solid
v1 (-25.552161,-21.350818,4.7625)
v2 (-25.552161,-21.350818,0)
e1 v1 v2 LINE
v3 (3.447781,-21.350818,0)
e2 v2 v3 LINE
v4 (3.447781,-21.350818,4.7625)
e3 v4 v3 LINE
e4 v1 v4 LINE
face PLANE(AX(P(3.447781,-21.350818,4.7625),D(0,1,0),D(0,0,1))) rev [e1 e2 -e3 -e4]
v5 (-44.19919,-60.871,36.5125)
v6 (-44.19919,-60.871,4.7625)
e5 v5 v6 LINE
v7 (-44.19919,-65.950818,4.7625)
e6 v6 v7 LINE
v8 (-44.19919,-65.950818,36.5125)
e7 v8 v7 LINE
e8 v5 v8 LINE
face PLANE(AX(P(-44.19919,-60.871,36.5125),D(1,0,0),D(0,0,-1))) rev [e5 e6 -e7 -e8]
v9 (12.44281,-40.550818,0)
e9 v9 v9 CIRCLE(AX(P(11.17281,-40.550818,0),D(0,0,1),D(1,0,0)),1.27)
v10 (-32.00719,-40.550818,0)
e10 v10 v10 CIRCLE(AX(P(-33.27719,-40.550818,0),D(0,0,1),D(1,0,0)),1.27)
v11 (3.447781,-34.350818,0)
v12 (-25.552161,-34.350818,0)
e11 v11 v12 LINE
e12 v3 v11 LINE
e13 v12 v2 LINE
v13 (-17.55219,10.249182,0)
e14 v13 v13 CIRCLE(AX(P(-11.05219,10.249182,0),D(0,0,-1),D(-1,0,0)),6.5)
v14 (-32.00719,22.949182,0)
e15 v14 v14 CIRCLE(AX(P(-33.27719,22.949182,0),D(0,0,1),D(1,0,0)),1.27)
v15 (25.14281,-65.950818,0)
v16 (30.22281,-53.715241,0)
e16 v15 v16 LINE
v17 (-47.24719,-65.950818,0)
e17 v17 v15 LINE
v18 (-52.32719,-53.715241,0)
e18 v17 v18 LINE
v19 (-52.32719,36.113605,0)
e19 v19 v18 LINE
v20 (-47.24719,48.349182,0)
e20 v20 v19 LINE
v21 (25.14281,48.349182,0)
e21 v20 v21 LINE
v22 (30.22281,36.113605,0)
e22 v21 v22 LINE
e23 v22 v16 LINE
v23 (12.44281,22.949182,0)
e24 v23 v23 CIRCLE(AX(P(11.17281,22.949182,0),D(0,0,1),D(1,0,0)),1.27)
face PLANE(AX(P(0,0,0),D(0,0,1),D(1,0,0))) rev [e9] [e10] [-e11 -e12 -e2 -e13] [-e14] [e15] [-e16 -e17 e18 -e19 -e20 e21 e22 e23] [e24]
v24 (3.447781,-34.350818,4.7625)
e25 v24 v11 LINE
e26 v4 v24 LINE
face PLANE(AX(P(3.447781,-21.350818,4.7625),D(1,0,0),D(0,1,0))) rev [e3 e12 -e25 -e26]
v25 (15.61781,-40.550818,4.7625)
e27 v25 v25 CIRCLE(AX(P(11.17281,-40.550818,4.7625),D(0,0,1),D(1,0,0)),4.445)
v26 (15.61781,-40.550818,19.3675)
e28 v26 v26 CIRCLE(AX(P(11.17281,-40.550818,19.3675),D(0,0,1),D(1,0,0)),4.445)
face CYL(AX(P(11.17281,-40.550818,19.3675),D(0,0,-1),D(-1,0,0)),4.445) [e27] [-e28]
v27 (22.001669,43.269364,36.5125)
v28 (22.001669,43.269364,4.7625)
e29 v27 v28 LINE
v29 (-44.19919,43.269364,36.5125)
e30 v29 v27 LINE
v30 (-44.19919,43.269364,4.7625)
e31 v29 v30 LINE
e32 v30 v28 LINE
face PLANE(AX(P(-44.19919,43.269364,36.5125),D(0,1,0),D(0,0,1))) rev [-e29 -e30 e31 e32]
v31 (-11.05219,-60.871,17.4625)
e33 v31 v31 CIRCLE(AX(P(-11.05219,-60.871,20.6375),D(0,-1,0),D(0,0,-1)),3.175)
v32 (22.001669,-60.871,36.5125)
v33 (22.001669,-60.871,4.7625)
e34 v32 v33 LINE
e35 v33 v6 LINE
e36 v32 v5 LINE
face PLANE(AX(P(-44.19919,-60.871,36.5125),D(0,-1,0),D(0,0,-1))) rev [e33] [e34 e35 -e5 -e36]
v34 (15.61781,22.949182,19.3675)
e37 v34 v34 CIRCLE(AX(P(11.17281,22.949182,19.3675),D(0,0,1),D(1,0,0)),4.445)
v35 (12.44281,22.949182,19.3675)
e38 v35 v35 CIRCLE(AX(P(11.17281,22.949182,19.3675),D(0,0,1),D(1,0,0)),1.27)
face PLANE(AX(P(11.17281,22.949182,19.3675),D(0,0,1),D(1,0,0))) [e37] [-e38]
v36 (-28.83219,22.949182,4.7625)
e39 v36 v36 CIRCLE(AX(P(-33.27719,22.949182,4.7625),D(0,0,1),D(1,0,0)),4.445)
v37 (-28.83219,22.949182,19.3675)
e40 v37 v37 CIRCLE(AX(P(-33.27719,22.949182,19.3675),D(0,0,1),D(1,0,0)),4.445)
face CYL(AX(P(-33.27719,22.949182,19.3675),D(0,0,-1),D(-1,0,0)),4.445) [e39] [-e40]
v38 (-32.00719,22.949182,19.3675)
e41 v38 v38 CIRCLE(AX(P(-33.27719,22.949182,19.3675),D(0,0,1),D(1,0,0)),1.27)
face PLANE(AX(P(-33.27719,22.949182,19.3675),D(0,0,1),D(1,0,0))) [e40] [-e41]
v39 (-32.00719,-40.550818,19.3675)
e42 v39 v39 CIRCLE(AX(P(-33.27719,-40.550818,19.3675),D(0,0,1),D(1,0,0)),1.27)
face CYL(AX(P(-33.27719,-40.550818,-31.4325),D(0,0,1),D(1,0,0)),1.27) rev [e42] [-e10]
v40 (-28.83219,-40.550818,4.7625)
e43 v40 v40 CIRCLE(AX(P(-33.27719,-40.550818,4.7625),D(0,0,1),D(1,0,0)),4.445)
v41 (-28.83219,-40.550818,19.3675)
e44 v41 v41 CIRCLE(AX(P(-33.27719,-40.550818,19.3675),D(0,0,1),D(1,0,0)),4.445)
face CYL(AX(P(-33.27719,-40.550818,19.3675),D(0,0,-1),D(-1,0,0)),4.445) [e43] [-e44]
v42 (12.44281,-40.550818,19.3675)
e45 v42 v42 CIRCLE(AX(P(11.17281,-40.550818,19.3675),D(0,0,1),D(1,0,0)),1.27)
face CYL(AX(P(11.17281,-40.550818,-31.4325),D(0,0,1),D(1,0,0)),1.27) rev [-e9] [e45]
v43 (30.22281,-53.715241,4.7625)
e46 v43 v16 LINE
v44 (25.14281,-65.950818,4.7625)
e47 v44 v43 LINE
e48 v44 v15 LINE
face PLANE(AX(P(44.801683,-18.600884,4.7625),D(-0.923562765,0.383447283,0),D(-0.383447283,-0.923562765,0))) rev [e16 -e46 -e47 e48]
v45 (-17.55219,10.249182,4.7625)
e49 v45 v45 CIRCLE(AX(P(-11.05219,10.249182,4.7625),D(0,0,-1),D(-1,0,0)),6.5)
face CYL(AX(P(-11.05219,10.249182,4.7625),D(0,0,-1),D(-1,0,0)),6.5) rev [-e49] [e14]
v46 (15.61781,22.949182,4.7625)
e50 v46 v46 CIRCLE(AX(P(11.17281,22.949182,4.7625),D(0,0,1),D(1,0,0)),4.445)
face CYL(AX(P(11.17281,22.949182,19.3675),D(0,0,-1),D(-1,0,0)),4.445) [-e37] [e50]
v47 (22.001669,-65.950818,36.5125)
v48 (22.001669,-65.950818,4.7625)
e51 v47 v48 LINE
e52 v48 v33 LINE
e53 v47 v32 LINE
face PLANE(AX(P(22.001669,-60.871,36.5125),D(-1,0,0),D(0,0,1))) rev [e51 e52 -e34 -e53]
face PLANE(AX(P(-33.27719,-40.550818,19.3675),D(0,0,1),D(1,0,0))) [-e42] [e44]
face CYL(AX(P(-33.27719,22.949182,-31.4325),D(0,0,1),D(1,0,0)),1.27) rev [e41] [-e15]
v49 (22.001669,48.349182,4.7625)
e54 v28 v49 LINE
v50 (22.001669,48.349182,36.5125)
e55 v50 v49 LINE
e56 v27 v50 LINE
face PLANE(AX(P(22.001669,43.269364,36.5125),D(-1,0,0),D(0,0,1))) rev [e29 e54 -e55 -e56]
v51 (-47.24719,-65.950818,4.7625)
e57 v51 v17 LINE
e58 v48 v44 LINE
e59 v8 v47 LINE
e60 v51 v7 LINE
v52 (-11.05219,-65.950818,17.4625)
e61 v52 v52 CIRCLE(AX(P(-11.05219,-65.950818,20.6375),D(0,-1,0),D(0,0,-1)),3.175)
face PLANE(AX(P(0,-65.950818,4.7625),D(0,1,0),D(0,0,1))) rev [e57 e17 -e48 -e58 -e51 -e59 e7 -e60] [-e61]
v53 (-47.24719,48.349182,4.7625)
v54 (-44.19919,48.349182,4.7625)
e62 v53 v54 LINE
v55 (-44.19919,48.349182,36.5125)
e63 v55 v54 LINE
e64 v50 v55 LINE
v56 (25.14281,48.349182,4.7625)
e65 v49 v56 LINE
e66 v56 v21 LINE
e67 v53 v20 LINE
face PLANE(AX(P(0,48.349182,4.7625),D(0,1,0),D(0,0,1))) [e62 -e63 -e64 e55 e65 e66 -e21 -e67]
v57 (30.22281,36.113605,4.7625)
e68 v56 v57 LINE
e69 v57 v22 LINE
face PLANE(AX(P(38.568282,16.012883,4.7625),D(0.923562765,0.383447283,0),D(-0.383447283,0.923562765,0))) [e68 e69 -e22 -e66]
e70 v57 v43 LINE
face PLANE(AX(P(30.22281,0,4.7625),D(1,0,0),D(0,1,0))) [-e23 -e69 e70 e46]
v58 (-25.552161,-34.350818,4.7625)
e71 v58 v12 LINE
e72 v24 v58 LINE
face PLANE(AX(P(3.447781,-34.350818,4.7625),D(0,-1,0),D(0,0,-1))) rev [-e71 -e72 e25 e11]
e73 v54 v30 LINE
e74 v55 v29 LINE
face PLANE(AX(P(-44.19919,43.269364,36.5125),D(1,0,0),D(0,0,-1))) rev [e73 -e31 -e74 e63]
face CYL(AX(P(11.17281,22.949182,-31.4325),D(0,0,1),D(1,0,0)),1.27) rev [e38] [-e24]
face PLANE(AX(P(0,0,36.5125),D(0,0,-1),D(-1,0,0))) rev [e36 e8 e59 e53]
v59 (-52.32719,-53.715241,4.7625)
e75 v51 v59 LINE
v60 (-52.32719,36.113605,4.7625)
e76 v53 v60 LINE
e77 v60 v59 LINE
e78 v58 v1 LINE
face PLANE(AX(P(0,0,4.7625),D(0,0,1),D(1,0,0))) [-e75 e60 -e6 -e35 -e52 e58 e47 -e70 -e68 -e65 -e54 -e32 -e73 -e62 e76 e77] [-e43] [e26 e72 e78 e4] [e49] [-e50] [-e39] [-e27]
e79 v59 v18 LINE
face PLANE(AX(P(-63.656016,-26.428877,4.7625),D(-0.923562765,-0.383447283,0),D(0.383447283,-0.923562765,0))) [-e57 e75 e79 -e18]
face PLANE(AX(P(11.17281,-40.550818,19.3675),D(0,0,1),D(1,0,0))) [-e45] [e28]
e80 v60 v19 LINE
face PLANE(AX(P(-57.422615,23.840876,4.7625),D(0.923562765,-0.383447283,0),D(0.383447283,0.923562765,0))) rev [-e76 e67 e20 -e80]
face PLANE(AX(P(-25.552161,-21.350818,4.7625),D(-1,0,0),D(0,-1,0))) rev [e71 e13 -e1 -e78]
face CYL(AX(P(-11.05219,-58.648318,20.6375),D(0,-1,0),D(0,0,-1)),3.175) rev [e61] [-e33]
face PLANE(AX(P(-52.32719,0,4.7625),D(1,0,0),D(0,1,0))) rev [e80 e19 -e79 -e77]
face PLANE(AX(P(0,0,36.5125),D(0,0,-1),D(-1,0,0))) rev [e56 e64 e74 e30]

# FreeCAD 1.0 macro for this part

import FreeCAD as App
import Part
import Sketcher

V = App.Vector
Q = App.Units.Quantity


def add_polygon(sketch, points):
    """Adds a closed chain of lines whose ends are joined by coincident constraints."""
    first, n = sketch.GeometryCount, len(points)
    for a, b in zip(points, points[1:] + points[:1]):
        sketch.addGeometry(Part.LineSegment(App.Vector(*a, 0), App.Vector(*b, 0)), False)
    for i in range(n):
        sketch.addConstraint(Sketcher.Constraint("Coincident", first + i, 2, first + (i + 1) % n, 1))

doc = App.newDocument("Part")
body = doc.addObject("PartDesign::Body", "Body")

# Sketch on XY plane
sketch1 = doc.addObject("Sketcher::SketchObject", "Sketch")
body.addObject(sketch1)
sketch1.AttachmentSupport = (doc.XY_Plane, [""])
sketch1.MapMode = "FlatFace"
add_polygon(sketch1, [(30, 36), (25, 48), (-47, 48), (-52, 36), (-52, -54), (-47, -66), (25, -66), (30, -54)])  # lines 0-7
sketch1.addConstraint([
    Sketcher.Constraint("Horizontal", 1),
    Sketcher.Constraint("Vertical", 3),
    Sketcher.Constraint("Horizontal", 5),
    Sketcher.Constraint("Vertical", 7),
    Sketcher.Constraint("Parallel", 0, 4),
    Sketcher.Constraint("Parallel", 2, 6),
    Sketcher.Constraint("Horizontal", 3, 2, 6, 2),
    Sketcher.Constraint("Horizontal", 2, 2, 7, 2),
    Sketcher.Constraint("Vertical", 1, 2, 4, 2),
    Sketcher.Constraint("Vertical", 0, 2, 5, 2),
    Sketcher.Constraint("DistanceX", 1, 2, 1, 1, Q("2.85 in")),
    Sketcher.Constraint("DistanceX", 2, 2, 1, 2, Q("0.2 in")),
    Sketcher.Constraint("DistanceY", 4, 2, 1, 2, Q("4.5 in")),
    Sketcher.Constraint("DistanceY", 3, 2, 3, 1, Q("89.828846 mm")),
    Sketcher.Constraint("DistanceX", -1, 1, 0, 2, Q("25.14281 mm")),
    Sketcher.Constraint("DistanceY", -1, 1, 0, 2, Q("48.349182 mm")),
])
pad1 = doc.addObject("PartDesign::Pad", "Pad")
body.addObject(pad1)
pad1.Profile = sketch1
pad1.Length = Q("0.1875 in")

# Sketch on XY plane
sketch2 = doc.addObject("Sketcher::SketchObject", "Sketch001")
body.addObject(sketch2)
sketch2.AttachmentSupport = (doc.XY_Plane, [""])
sketch2.MapMode = "FlatFace"
sketch2.AttachmentOffset = App.Placement(V(0, 0, 0.1875 * 25.4), App.Rotation())
add_polygon(sketch2, [(-44, 48), (-44, 43), (22, 43), (22, 48)])  # lines 0-3
add_polygon(sketch2, [(-44, -61), (-44, -66), (22, -66), (22, -61)])  # lines 4-7
sketch2.addConstraint([
    Sketcher.Constraint("Vertical", 0),
    Sketcher.Constraint("Horizontal", 1),
    Sketcher.Constraint("Vertical", 2),
    Sketcher.Constraint("Horizontal", 3),
    Sketcher.Constraint("Vertical", 4),
    Sketcher.Constraint("Horizontal", 5),
    Sketcher.Constraint("Vertical", 6),
    Sketcher.Constraint("Horizontal", 7),
    Sketcher.Constraint("Vertical", 3, 2, 4, 2),
    Sketcher.Constraint("Vertical", 2, 2, 5, 2),
    Sketcher.Constraint("Equal", 2, 4),
    Sketcher.Constraint("DistanceY", 4, 2, 3, 2, Q("4.5 in")),
    Sketcher.Constraint("DistanceX", 1, 1, 1, 2, Q("66.200859 mm")),
    Sketcher.Constraint("DistanceY", 0, 2, 0, 1, Q("5.079818 mm")),
    Sketcher.Constraint("DistanceY", 6, 2, -1, 1, Q("60.871 mm")),
    Sketcher.Constraint("DistanceX", 0, 2, -1, 1, Q("44.19919 mm")),
])
pad2 = doc.addObject("PartDesign::Pad", "Pad001")
body.addObject(pad2)
pad2.Profile = sketch2
pad2.Length = Q("1.25 in")

# Sketch on XY plane
sketch3 = doc.addObject("Sketcher::SketchObject", "Sketch002")
body.addObject(sketch3)
sketch3.AttachmentSupport = (doc.XY_Plane, [""])
sketch3.MapMode = "FlatFace"
add_polygon(sketch3, [(3, -21), (3, -34), (-26, -34), (-26, -21)])  # lines 0-3
sketch3.addConstraint([
    Sketcher.Constraint("Vertical", 0),
    Sketcher.Constraint("Horizontal", 1),
    Sketcher.Constraint("Vertical", 2),
    Sketcher.Constraint("Horizontal", 3),
    Sketcher.Constraint("DistanceY", 0, 2, 0, 1, Q("12.999999 mm")),
    Sketcher.Constraint("DistanceX", 1, 2, 1, 1, Q("28.999942 mm")),
    Sketcher.Constraint("DistanceX", -1, 1, 0, 2, Q("3.447781 mm")),
    Sketcher.Constraint("DistanceY", 2, 2, -1, 1, Q("21.350818 mm")),
])
pocket1 = doc.addObject("PartDesign::Pocket", "Pocket")
body.addObject(pocket1)
pocket1.Profile = sketch3
pocket1.Length = Q("0.1875 in")
pocket1.Reversed = True

# Sketch on XY plane
sketch4 = doc.addObject("Sketcher::SketchObject", "Sketch003")
body.addObject(sketch4)
sketch4.AttachmentSupport = (doc.XY_Plane, [""])
sketch4.MapMode = "FlatFace"
sketch4.addGeometry(Part.Circle(V(-11, 10, 0), V(0, 0, 1), 6), False)
sketch4.addConstraint([
    Sketcher.Constraint("Diameter", 0, Q("12.999999 mm")),
    Sketcher.Constraint("DistanceX", 0, 3, -1, 1, Q("11.05219 mm")),
    Sketcher.Constraint("DistanceY", -1, 1, 0, 3, Q("10.249182 mm")),
])
pocket2 = doc.addObject("PartDesign::Pocket", "Pocket001")
body.addObject(pocket2)
pocket2.Profile = sketch4
pocket2.Length = Q("0.1875 in")
pocket2.Reversed = True

# Sketch on XZ plane
sketch5 = doc.addObject("Sketcher::SketchObject", "Sketch004")
body.addObject(sketch5)
sketch5.AttachmentSupport = (doc.XZ_Plane, [""])
sketch5.MapMode = "FlatFace"
sketch5.AttachmentOffset = App.Placement(V(0, 0, 65.950818), App.Rotation())
sketch5.addGeometry(Part.Circle(V(-11.1, 20.6, 0), V(0, 0, 1), 3.2), False)
sketch5.addConstraint([
    Sketcher.Constraint("Diameter", 0, Q("0.25 in")),
    Sketcher.Constraint("DistanceY", -1, 1, 0, 3, Q("0.8125 in")),
    Sketcher.Constraint("DistanceX", 0, 3, -1, 1, Q("11.05219 mm")),
])
pocket3 = doc.addObject("PartDesign::Pocket", "Pocket002")
body.addObject(pocket3)
pocket3.Profile = sketch5
pocket3.Length = Q("0.2875 in")

# Sketch on XY plane
sketch6 = doc.addObject("Sketcher::SketchObject", "Sketch005")
body.addObject(sketch6)
sketch6.AttachmentSupport = (doc.XY_Plane, [""])
sketch6.MapMode = "FlatFace"
sketch6.AttachmentOffset = App.Placement(V(0, 0, 0.1875 * 25.4), App.Rotation())
sketch6.addGeometry([
    Part.Circle(V(11.2, -40.6, 0), V(0, 0, 1), 4.4),
    Part.Circle(V(-33.3, -40.6, 0), V(0, 0, 1), 4.4),
    Part.Circle(V(11.2, 22.9, 0), V(0, 0, 1), 4.4),
    Part.Circle(V(-33.3, 22.9, 0), V(0, 0, 1), 4.4),
], False)
sketch6.addConstraint([
    Sketcher.Constraint("Equal", 0, 1),
    Sketcher.Constraint("Equal", 1, 2),
    Sketcher.Constraint("Equal", 2, 3),
    Sketcher.Constraint("Horizontal", 0, 3, 1, 3),
    Sketcher.Constraint("Horizontal", 2, 3, 3, 3),
    Sketcher.Constraint("Vertical", 0, 3, 2, 3),
    Sketcher.Constraint("Vertical", 1, 3, 3, 3),
    Sketcher.Constraint("Diameter", 0, Q("0.35 in")),
    Sketcher.Constraint("DistanceY", 0, 3, 2, 3, Q("2.5 in")),
    Sketcher.Constraint("DistanceX", 1, 3, 0, 3, Q("1.75 in")),
    Sketcher.Constraint("DistanceX", -1, 1, 0, 3, Q("11.17281 mm")),
    Sketcher.Constraint("DistanceY", 0, 3, -1, 1, Q("40.550818 mm")),
])
pad3 = doc.addObject("PartDesign::Pad", "Pad002")
body.addObject(pad3)
pad3.Profile = sketch6
pad3.Length = Q("0.575 in")

# Sketch on XY plane
sketch7 = doc.addObject("Sketcher::SketchObject", "Sketch006")
body.addObject(sketch7)
sketch7.AttachmentSupport = (doc.XY_Plane, [""])
sketch7.MapMode = "FlatFace"
sketch7.AttachmentOffset = App.Placement(V(0, 0, 0.7625 * 25.4), App.Rotation())
sketch7.addGeometry([
    Part.Circle(V(-33.3, 22.9, 0), V(0, 0, 1), 1.3),
    Part.Circle(V(11.2, 22.9, 0), V(0, 0, 1), 1.3),
    Part.Circle(V(11.2, -40.6, 0), V(0, 0, 1), 1.3),
    Part.Circle(V(-33.3, -40.6, 0), V(0, 0, 1), 1.3),
], False)
sketch7.addConstraint([
    Sketcher.Constraint("Equal", 0, 1),
    Sketcher.Constraint("Equal", 1, 2),
    Sketcher.Constraint("Equal", 2, 3),
    Sketcher.Constraint("Horizontal", 0, 3, 1, 3),
    Sketcher.Constraint("Horizontal", 2, 3, 3, 3),
    Sketcher.Constraint("Vertical", 1, 3, 2, 3),
    Sketcher.Constraint("Vertical", 0, 3, 3, 3),
    Sketcher.Constraint("Diameter", 0, Q("0.1 in")),
    Sketcher.Constraint("DistanceY", 2, 3, 1, 3, Q("2.5 in")),
    Sketcher.Constraint("DistanceX", 0, 3, 1, 3, Q("1.75 in")),
    Sketcher.Constraint("DistanceX", 0, 3, -1, 1, Q("33.27719 mm")),
    Sketcher.Constraint("DistanceY", -1, 1, 0, 3, Q("22.949182 mm")),
])
pocket4 = doc.addObject("PartDesign::Pocket", "Pocket003")
body.addObject(pocket4)
pocket4.Profile = sketch7
pocket4.Length = Q("2 in")

doc.recompute()
